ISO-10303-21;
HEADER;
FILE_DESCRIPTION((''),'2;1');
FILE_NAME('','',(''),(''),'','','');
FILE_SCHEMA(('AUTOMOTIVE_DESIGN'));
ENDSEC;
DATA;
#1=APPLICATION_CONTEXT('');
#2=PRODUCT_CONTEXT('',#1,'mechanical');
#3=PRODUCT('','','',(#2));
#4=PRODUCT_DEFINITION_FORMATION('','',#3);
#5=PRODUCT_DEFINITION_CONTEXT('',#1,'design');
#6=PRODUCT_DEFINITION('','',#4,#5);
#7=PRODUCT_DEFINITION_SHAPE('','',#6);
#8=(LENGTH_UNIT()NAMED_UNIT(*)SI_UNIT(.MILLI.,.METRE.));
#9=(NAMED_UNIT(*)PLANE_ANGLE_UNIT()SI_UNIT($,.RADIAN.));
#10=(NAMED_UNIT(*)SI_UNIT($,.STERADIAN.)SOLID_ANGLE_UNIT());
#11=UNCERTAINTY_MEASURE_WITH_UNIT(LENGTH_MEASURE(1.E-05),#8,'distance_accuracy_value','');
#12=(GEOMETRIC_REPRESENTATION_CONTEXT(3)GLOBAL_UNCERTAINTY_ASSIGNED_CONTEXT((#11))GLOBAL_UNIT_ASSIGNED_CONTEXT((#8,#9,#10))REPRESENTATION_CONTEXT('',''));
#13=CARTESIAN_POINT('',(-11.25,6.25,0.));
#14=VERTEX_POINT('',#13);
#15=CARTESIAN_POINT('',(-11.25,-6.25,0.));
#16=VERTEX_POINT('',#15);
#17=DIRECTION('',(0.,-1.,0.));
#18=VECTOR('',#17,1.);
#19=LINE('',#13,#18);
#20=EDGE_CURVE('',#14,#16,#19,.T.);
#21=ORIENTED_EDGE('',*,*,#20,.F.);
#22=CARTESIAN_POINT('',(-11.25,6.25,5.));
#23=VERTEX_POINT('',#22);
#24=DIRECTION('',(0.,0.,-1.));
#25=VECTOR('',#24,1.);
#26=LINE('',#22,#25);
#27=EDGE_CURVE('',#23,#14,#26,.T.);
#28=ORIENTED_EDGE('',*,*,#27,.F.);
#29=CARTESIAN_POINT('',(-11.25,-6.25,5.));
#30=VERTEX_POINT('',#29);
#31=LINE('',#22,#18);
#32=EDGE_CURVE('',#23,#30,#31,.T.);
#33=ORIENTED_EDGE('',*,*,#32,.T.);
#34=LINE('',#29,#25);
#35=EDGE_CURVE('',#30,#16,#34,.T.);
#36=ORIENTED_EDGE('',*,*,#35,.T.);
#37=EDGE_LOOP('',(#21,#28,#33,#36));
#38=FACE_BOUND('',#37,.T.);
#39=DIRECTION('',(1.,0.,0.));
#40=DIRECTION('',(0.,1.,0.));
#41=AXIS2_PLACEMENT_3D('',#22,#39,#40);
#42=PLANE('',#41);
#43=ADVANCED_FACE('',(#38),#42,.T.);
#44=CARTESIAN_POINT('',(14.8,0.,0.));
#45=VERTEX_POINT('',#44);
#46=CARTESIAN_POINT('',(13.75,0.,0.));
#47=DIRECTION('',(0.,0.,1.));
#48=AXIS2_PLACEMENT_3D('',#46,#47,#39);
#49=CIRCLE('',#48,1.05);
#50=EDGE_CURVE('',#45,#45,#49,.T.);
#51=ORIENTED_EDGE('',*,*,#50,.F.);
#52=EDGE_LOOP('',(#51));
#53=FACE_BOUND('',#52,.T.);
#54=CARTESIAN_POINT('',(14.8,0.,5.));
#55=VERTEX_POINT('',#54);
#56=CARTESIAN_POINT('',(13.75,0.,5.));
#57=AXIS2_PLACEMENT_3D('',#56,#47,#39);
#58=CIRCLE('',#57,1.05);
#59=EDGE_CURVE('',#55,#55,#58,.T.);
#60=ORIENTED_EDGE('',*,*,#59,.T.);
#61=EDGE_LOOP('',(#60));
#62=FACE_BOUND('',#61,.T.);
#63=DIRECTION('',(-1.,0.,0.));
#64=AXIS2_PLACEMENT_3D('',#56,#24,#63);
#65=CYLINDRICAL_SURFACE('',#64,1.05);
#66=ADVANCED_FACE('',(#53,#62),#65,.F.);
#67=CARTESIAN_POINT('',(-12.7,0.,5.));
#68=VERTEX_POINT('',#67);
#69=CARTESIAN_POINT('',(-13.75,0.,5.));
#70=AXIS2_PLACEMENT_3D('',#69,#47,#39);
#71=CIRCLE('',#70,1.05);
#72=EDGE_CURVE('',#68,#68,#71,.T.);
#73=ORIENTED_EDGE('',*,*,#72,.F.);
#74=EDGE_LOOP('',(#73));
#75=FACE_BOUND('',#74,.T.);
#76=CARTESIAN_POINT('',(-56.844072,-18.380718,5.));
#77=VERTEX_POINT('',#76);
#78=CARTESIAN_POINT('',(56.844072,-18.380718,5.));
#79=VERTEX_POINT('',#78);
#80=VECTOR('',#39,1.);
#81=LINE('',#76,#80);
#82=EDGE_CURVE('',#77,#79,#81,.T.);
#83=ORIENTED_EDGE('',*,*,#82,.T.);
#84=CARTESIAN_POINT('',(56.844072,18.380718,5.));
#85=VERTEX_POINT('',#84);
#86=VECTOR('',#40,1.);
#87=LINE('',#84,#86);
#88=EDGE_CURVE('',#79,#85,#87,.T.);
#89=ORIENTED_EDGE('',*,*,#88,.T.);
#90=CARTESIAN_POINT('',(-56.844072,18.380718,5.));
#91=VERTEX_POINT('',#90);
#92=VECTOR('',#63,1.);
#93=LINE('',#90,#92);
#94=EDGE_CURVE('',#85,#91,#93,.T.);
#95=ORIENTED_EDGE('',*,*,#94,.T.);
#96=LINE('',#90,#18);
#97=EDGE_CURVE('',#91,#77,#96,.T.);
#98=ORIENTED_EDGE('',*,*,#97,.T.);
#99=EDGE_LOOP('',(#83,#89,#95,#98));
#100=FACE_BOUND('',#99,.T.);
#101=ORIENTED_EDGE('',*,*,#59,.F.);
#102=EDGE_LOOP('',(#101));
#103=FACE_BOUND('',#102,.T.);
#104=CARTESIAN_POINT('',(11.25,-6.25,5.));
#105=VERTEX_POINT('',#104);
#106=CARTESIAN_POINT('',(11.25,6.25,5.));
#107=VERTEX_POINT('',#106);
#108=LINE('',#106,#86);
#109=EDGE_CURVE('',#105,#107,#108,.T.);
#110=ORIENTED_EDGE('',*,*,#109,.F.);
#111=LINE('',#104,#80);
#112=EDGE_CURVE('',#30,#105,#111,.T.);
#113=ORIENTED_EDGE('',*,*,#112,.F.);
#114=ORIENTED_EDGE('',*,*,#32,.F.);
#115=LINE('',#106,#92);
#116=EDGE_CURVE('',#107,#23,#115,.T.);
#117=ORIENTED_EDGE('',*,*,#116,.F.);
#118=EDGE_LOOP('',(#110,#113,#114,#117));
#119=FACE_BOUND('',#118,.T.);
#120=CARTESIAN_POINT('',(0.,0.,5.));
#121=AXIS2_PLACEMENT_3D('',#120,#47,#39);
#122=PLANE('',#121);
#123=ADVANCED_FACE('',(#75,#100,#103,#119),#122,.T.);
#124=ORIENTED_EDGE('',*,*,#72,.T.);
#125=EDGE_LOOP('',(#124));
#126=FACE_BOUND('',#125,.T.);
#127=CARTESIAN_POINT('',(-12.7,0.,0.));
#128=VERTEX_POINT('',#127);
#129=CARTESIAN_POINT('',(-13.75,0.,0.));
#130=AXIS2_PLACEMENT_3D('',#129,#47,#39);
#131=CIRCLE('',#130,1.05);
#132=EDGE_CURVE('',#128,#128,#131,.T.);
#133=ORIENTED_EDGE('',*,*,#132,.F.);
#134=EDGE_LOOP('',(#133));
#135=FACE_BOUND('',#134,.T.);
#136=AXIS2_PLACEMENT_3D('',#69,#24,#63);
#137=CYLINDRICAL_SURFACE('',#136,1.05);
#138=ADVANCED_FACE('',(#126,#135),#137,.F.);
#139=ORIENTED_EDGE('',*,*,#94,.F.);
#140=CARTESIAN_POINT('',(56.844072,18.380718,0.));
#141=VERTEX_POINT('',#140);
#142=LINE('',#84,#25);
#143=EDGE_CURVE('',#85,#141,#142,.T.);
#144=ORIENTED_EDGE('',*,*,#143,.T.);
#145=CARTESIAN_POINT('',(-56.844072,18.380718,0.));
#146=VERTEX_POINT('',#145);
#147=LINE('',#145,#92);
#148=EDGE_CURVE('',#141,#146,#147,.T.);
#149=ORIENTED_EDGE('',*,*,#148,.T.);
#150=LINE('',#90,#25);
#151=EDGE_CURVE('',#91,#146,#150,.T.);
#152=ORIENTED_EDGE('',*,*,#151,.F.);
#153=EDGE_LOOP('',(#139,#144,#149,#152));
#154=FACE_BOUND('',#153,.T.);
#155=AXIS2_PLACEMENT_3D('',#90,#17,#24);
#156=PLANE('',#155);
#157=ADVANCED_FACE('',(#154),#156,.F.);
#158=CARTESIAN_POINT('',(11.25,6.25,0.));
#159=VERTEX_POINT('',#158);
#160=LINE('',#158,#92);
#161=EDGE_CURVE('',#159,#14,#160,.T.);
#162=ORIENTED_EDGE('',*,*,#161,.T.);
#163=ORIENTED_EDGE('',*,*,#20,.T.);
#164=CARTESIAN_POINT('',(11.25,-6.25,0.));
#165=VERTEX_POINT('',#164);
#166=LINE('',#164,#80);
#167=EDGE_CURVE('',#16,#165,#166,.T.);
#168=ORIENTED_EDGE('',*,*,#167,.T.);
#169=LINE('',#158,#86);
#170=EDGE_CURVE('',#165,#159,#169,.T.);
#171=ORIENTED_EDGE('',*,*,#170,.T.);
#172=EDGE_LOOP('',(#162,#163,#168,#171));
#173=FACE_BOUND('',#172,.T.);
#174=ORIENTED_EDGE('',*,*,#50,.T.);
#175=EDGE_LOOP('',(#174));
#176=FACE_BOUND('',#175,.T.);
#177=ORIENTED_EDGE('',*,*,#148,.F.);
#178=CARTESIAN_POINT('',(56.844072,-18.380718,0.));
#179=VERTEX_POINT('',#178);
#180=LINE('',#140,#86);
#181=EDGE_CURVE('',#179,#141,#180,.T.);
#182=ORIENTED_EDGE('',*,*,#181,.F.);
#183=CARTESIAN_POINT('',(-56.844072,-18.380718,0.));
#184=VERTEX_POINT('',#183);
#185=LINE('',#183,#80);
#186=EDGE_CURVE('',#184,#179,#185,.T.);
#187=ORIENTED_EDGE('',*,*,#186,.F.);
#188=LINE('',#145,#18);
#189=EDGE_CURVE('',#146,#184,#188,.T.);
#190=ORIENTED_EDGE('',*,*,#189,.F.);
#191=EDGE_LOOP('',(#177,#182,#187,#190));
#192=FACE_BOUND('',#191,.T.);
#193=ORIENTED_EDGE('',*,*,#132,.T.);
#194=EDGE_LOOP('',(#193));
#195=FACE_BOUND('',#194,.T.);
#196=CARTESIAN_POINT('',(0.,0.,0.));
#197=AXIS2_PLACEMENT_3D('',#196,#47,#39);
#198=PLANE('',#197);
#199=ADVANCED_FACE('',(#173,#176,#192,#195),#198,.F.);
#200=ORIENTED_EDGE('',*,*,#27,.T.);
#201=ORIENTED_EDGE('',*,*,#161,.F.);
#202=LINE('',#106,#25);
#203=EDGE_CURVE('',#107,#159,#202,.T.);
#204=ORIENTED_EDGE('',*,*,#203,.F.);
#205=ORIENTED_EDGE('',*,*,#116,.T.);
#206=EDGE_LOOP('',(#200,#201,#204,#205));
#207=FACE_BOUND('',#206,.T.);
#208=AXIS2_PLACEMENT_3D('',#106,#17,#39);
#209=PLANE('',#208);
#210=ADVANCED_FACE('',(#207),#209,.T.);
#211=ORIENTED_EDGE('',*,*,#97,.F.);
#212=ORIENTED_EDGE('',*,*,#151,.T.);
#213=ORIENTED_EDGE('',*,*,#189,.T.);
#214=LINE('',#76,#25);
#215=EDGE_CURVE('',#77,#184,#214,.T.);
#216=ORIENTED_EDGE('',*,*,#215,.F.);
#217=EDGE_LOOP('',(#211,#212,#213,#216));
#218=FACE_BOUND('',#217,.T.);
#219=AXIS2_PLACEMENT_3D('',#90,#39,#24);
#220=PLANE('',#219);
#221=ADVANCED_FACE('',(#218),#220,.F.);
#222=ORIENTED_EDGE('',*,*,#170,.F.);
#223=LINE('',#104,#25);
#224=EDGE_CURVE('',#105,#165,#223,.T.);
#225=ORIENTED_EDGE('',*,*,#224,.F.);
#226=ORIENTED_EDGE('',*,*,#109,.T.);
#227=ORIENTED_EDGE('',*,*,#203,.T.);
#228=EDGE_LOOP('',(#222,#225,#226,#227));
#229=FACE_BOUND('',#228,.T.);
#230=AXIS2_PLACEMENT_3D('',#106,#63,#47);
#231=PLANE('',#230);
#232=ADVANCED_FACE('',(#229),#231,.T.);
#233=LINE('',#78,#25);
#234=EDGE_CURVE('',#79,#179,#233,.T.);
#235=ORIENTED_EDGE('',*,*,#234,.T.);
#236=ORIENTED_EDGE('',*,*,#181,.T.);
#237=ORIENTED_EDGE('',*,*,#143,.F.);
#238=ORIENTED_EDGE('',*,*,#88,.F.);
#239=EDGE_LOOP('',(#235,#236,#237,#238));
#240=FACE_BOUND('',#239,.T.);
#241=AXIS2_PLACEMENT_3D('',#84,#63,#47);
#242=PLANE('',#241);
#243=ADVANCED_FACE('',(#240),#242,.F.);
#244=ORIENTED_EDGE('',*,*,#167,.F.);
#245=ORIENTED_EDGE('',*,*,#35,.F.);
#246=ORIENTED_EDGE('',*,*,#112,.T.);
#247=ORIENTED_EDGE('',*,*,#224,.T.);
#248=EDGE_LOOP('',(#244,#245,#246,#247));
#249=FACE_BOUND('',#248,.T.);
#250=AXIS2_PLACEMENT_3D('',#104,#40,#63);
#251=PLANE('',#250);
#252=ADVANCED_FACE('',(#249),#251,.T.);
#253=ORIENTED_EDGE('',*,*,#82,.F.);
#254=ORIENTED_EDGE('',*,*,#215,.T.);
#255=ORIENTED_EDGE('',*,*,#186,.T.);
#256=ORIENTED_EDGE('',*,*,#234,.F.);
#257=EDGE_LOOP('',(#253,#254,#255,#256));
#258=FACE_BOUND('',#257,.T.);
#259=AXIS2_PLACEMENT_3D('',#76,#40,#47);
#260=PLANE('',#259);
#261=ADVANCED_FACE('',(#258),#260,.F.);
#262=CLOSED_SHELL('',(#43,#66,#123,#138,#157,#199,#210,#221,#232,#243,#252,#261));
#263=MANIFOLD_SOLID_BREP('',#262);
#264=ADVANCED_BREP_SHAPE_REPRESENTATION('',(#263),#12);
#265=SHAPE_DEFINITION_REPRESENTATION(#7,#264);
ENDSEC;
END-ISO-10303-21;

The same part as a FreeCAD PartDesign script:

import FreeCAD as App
import Part
import Sketcher

V = App.Vector
Q = App.Units.Quantity


def add_polygon(sketch, points):
    """Adds a closed chain of lines whose ends are joined by coincident constraints."""
    first, n = sketch.GeometryCount, len(points)
    for a, b in zip(points, points[1:] + points[:1]):
        sketch.addGeometry(Part.LineSegment(App.Vector(*a, 0), App.Vector(*b, 0)), False)
    for i in range(n):
        sketch.addConstraint(Sketcher.Constraint("Coincident", first + i, 2, first + (i + 1) % n, 1))

doc = App.newDocument("Part")
body = doc.addObject("PartDesign::Body", "Body")

# Sketch on XY plane
sketch1 = body.newObject("Sketcher::SketchObject", "Sketch")
sketch1.AttachmentSupport = (doc.getObject("XY_Plane"), [""])
sketch1.MapMode = "FlatFace"
add_polygon(sketch1, [(-56.8, 18.4), (-56.8, -18.4), (56.8, -18.4), (56.8, 18.4)])  # lines 0-3
sketch1.addGeometry(Part.Circle(V(-13.8, 0, 0), V(0, 0, 1), 1.1), False)  # 4
add_polygon(sketch1, [(11.2, -6.2), (-11.2, -6.2), (-11.2, 6.2), (11.2, 6.2)])  # lines 5-8
sketch1.addGeometry(Part.Circle(V(13.8, 0, 0), V(0, 0, 1), 1.1), False)  # 9
sketch1.addConstraint(Sketcher.Constraint("Vertical", 0))
sketch1.addConstraint(Sketcher.Constraint("Horizontal", 1))
sketch1.addConstraint(Sketcher.Constraint("Vertical", 2))
sketch1.addConstraint(Sketcher.Constraint("Horizontal", 3))
sketch1.addConstraint(Sketcher.Constraint("Horizontal", 5))
sketch1.addConstraint(Sketcher.Constraint("Vertical", 6))
sketch1.addConstraint(Sketcher.Constraint("Horizontal", 7))
sketch1.addConstraint(Sketcher.Constraint("Vertical", 8))
sketch1.addConstraint(Sketcher.Constraint("Equal", 4, 9))
sketch1.addConstraint(Sketcher.Constraint("Symmetric", 4, 3, 9, 3, -1, 1))
sketch1.addConstraint(Sketcher.Constraint("Symmetric", 0, 2, 2, 2, -1, 1))
sketch1.addConstraint(Sketcher.Constraint("Symmetric", 5, 2, 7, 2, -1, 1))
sketch1.addConstraint(Sketcher.Constraint("PointOnObject", 4, 3, -1))
sketch1.addConstraint(Sketcher.Constraint("Diameter", 4, Q("2.1 mm")))
sketch1.addConstraint(Sketcher.Constraint("DistanceX", 5, 2, 5, 1, Q("22.5 mm")))
sketch1.addConstraint(Sketcher.Constraint("DistanceY", 6, 1, 6, 2, Q("12.5 mm")))
sketch1.addConstraint(Sketcher.Constraint("DistanceX", 5, 2, 9, 3, Q("25 mm")))
sketch1.addConstraint(Sketcher.Constraint("DistanceX", 1, 1, 1, 2, Q("113.688143 mm")))
sketch1.addConstraint(Sketcher.Constraint("DistanceY", 0, 2, 0, 1, Q("36.761436 mm")))
pad1 = body.newObject("PartDesign::Pad", "Pad")
pad1.Profile = sketch1
pad1.Length = 5

doc.recompute()
